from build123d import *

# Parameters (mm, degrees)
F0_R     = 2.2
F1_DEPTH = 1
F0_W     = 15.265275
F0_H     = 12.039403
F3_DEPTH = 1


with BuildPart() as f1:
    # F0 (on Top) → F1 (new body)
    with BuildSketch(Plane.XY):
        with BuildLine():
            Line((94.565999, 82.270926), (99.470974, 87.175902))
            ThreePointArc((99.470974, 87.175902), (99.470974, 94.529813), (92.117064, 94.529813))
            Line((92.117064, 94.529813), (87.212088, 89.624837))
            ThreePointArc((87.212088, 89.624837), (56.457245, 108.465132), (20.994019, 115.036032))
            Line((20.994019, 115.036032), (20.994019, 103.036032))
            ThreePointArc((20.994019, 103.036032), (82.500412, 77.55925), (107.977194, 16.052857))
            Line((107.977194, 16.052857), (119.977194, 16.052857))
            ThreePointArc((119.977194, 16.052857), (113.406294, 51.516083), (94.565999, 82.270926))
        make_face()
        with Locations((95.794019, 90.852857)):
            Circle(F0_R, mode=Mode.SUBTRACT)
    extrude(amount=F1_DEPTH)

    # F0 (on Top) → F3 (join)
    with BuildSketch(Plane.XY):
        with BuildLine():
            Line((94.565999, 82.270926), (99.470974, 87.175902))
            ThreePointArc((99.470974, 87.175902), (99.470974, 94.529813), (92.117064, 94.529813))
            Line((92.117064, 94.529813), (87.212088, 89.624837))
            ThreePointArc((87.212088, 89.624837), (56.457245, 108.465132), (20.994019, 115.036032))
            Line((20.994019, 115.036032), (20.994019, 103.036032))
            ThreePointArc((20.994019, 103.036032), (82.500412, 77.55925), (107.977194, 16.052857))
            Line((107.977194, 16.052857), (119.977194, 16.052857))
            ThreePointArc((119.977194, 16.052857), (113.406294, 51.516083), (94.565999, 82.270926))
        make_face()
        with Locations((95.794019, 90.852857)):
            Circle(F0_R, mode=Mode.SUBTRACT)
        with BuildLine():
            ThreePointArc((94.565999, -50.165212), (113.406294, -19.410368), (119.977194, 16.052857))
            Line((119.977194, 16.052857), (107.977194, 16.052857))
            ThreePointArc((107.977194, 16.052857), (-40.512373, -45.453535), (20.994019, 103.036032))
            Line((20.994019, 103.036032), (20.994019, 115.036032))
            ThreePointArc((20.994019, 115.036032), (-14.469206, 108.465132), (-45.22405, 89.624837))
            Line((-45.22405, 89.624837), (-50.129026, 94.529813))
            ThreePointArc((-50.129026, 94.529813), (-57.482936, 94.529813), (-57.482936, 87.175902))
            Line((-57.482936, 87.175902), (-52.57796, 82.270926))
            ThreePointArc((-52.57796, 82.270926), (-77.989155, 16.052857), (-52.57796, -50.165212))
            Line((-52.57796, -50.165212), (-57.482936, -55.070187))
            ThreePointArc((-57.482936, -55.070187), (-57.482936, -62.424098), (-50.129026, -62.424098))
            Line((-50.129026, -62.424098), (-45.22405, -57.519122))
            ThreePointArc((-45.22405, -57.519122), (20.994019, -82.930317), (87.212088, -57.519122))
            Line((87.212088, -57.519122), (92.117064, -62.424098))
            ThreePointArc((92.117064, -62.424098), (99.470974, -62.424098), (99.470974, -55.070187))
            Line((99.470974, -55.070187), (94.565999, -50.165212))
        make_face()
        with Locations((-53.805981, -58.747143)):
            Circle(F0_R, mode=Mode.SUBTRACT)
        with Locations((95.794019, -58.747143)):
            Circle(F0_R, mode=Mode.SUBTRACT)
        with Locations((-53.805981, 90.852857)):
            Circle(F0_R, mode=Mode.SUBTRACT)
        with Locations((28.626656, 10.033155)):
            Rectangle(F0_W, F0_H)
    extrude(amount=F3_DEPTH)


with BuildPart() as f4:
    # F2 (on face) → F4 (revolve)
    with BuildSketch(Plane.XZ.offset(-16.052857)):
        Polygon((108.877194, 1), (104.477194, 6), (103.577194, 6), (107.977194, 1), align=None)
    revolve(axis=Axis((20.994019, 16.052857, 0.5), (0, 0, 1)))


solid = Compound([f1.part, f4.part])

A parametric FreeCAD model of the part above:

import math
import FreeCAD as App
import Part
import Sketcher
from FreeCAD import Vector


def add_polygon(sketch, points):
    """Adds a closed chain of lines whose ends are joined by coincident constraints."""
    first, n = sketch.GeometryCount, len(points)
    for a, b in zip(points, points[1:] + points[:1]):
        sketch.addGeometry(Part.LineSegment(App.Vector(*a, 0), App.Vector(*b, 0)), False)
    for i in range(n):
        sketch.addConstraint(Sketcher.Constraint("Coincident", first + i, 2, first + (i + 1) % n, 1))

doc = App.newDocument("Part")
body = doc.addObject("PartDesign::Body", "Body")
body.AllowCompound = True

# Sketch on XY plane
sketch1 = body.newObject("Sketcher::SketchObject", "Sketch")
sketch1.AttachmentSupport = (doc.getObject("XY_Plane"), [""])
sketch1.MapMode = "FlatFace"
sketch1.addGeometry(Part.LineSegment(Vector(94.565999, 82.270926, 0), Vector(99.470974, 87.175902, 0)), False)
sketch1.addGeometry(Part.ArcOfCircle(Part.Circle(Vector(95.794019, 90.852857, 0), Vector(0, 0, 1), 5.2), math.radians(-45.000004), math.radians(134.999996)), False)
sketch1.addGeometry(Part.LineSegment(Vector(92.117064, 94.529813, 0), Vector(87.212088, 89.624837, 0)), False)
sketch1.addGeometry(Part.ArcOfCircle(Part.Circle(Vector(20.99402, 16.052861, 0), Vector(0, 0, 1), 98.983171), math.radians(48.011372), math.radians(90.000001)), False)
sketch1.addGeometry(Part.LineSegment(Vector(20.994019, 115.036032, 0), Vector(20.994019, 103.036032, 0)), False)
sketch1.addGeometry(Part.ArcOfCircle(Part.Circle(Vector(20.994019, 16.052857, 0), Vector(0, 0, 1), 86.983175), math.radians(0), math.radians(90)), False)
sketch1.addGeometry(Part.LineSegment(Vector(107.977194, 16.052857, 0), Vector(119.977194, 16.052857, 0)), False)
sketch1.addGeometry(Part.ArcOfCircle(Part.Circle(Vector(20.994023, 16.052858, 0), Vector(0, 0, 1), 98.983171), math.radians(-0.000001), math.radians(41.988628)), False)
sketch1.addGeometry(Part.Circle(Vector(95.794019, 90.852857, 0), Vector(0, 0, 1), 2.2), False)
sketch1.addConstraint(Sketcher.Constraint("Coincident", 0, 2, 1, 1))
sketch1.addConstraint(Sketcher.Constraint("Coincident", 1, 2, 2, 1))
sketch1.addConstraint(Sketcher.Constraint("Coincident", 2, 2, 3, 1))
sketch1.addConstraint(Sketcher.Constraint("Coincident", 3, 2, 4, 1))
sketch1.addConstraint(Sketcher.Constraint("Coincident", 4, 2, 5, 2))
sketch1.addConstraint(Sketcher.Constraint("Coincident", 5, 1, 6, 1))
sketch1.addConstraint(Sketcher.Constraint("Coincident", 6, 2, 7, 1))
sketch1.addConstraint(Sketcher.Constraint("Coincident", 7, 2, 0, 1))
sketch1.addConstraint(Sketcher.Constraint("Vertical", 4))
sketch1.addConstraint(Sketcher.Constraint("Horizontal", 6))
sketch1.addConstraint(Sketcher.Constraint("Coincident", 5, 3, 3, 3))
sketch1.addConstraint(Sketcher.Constraint("Coincident", 7, 3, 3, 3))
sketch1.addConstraint(Sketcher.Constraint("Coincident", 8, 3, 1, 3))
sketch1.addConstraint(Sketcher.Constraint("Diameter", 8, 4.4))
sketch1.addConstraint(Sketcher.Constraint("Radius", 1, 5.2))
sketch1.addConstraint(Sketcher.Constraint("DistanceX", 6, 1, 6, 2, 12.0))
sketch1.addConstraint(Sketcher.Constraint("DistanceY", 4, 2, 4, 1, 12.0))
sketch1.addConstraint(Sketcher.Constraint("DistanceX", 3, 3, 1, 3, 74.799999))
sketch1.addConstraint(Sketcher.Constraint("DistanceY", 5, 3, 1, 3, 74.8))
sketch1.addConstraint(Sketcher.Constraint("DistanceX", 3, 2, 1, 3, 74.8))
sketch1.addConstraint(Sketcher.Constraint("DistanceY", 5, 1, 8, 3, 74.8))
sketch1.addConstraint(Sketcher.Constraint("Radius", 3, 98.983171))
sketch1.addConstraint(Sketcher.Constraint("DistanceX", -1, 1, 7, 2, 94.565999))
sketch1.addConstraint(Sketcher.Constraint("DistanceY", -1, 1, 0, 2, 87.175902))
sketch1.addConstraint(Sketcher.Constraint("DistanceX", -1, 1, 1, 3, 95.794019))
sketch1.addConstraint(Sketcher.Constraint("DistanceY", -1, 1, 3, 3, 16.052861))
sketch1.addConstraint(Sketcher.Constraint("DistanceX", 1, 2, 0, 2, 7.35391))
sketch1.addConstraint(Sketcher.Constraint("DistanceX", 2, 2, 8, 3, 8.581931))
pad1 = body.newObject("PartDesign::Pad", "Pad")
pad1.Profile = sketch1
pad1.Length = 1

# Sketch on XY plane
sketch2 = body.newObject("Sketcher::SketchObject", "Sketch001")
sketch2.AttachmentSupport = (doc.getObject("XY_Plane"), [""])
sketch2.MapMode = "FlatFace"
sketch2.addGeometry(Part.LineSegment(Vector(94.6, 82.3, 0), Vector(99.5, 87.2, 0)), False)  # 0
sketch2.addGeometry(Part.ArcOfCircle(Part.Circle(Vector(95.8, 90.9, 0), Vector(0, 0, 1), 5.2), math.radians(-45), math.radians(135)), False)  # 1
sketch2.addGeometry(Part.LineSegment(Vector(92.1, 94.5, 0), Vector(87.2, 89.6, 0)), False)  # 2
sketch2.addGeometry(Part.ArcOfCircle(Part.Circle(Vector(21, 16.1, 0), Vector(0, 0, 1), 99), math.radians(48), math.radians(90)), False)  # 3
sketch2.addGeometry(Part.ArcOfCircle(Part.Circle(Vector(21, 16.1, 0), Vector(0, 0, 1), 99), math.radians(90), math.radians(132)), False)  # 4
sketch2.addGeometry(Part.LineSegment(Vector(-45.2, 89.6, 0), Vector(-50.1, 94.5, 0)), False)  # 5
sketch2.addGeometry(Part.ArcOfCircle(Part.Circle(Vector(-53.8, 90.9, 0), Vector(0, 0, 1), 5.2), math.radians(45), math.radians(225)), False)  # 6
sketch2.addGeometry(Part.LineSegment(Vector(-57.5, 87.2, 0), Vector(-52.6, 82.3, 0)), False)  # 7
sketch2.addGeometry(Part.ArcOfCircle(Part.Circle(Vector(21, 16.1, 0), Vector(0, 0, 1), 99), math.radians(138), math.radians(222)), False)  # 8
sketch2.addGeometry(Part.LineSegment(Vector(-52.6, -50.2, 0), Vector(-57.5, -55.1, 0)), False)  # 9
sketch2.addGeometry(Part.ArcOfCircle(Part.Circle(Vector(-53.8, -58.7, 0), Vector(0, 0, 1), 5.2), math.radians(135), math.radians(315)), False)  # 10
sketch2.addGeometry(Part.LineSegment(Vector(-50.1, -62.4, 0), Vector(-45.2, -57.5, 0)), False)  # 11
sketch2.addGeometry(Part.ArcOfCircle(Part.Circle(Vector(21, 16.1, 0), Vector(0, 0, 1), 99), math.radians(-132), math.radians(-48)), False)  # 12
sketch2.addGeometry(Part.LineSegment(Vector(87.2, -57.5, 0), Vector(92.1, -62.4, 0)), False)  # 13
sketch2.addGeometry(Part.ArcOfCircle(Part.Circle(Vector(95.8, -58.7, 0), Vector(0, 0, 1), 5.2), math.radians(-135), math.radians(45)), False)  # 14
sketch2.addGeometry(Part.LineSegment(Vector(99.5, -55.1, 0), Vector(94.6, -50.2, 0)), False)  # 15
sketch2.addGeometry(Part.ArcOfCircle(Part.Circle(Vector(21, 16.1, 0), Vector(0, 0, 1), 99), math.radians(-42), math.radians(0)), False)  # 16
sketch2.addGeometry(Part.ArcOfCircle(Part.Circle(Vector(21, 16.1, 0), Vector(0, 0, 1), 99), math.radians(0), math.radians(42)), False)  # 17
sketch2.addGeometry(Part.Circle(Vector(-53.8, -58.7, 0), Vector(0, 0, 1), 2.2), False)  # 18
sketch2.addGeometry(Part.ArcOfCircle(Part.Circle(Vector(21, 16.1, 0), Vector(0, 0, 1), 87), math.radians(0), math.radians(90)), False)  # 19
sketch2.addGeometry(Part.ArcOfCircle(Part.Circle(Vector(21, 16.1, 0), Vector(0, 0, 1), 87), math.radians(90), math.radians(360)), False)  # 20
sketch2.addGeometry(Part.Circle(Vector(95.8, -58.7, 0), Vector(0, 0, 1), 2.2), False)  # 21
sketch2.addGeometry(Part.Circle(Vector(-53.8, 90.9, 0), Vector(0, 0, 1), 2.2), False)  # 22
sketch2.addGeometry(Part.Circle(Vector(95.8, 90.9, 0), Vector(0, 0, 1), 2.2), False)  # 23
add_polygon(sketch2, [(21, 16.1), (21, 4), (36.3, 4), (36.3, 16.1)])  # lines 24-27
sketch2.addConstraint(Sketcher.Constraint("Tangent", 0, 2, 1, 1))
sketch2.addConstraint(Sketcher.Constraint("Tangent", 1, 2, 2, 1))
sketch2.addConstraint(Sketcher.Constraint("Coincident", 2, 2, 3, 1))
sketch2.addConstraint(Sketcher.Constraint("Tangent", 3, 2, 4, 1))
sketch2.addConstraint(Sketcher.Constraint("Coincident", 4, 2, 5, 1))
sketch2.addConstraint(Sketcher.Constraint("Tangent", 5, 2, 6, 1))
sketch2.addConstraint(Sketcher.Constraint("Tangent", 6, 2, 7, 1))
sketch2.addConstraint(Sketcher.Constraint("Coincident", 7, 2, 8, 1))
sketch2.addConstraint(Sketcher.Constraint("Coincident", 8, 2, 9, 1))
sketch2.addConstraint(Sketcher.Constraint("Tangent", 9, 2, 10, 1))
sketch2.addConstraint(Sketcher.Constraint("Tangent", 10, 2, 11, 1))
sketch2.addConstraint(Sketcher.Constraint("Coincident", 11, 2, 12, 1))
sketch2.addConstraint(Sketcher.Constraint("Coincident", 12, 2, 13, 1))
sketch2.addConstraint(Sketcher.Constraint("Tangent", 13, 2, 14, 1))
sketch2.addConstraint(Sketcher.Constraint("Tangent", 14, 2, 15, 1))
sketch2.addConstraint(Sketcher.Constraint("Coincident", 15, 2, 16, 1))
sketch2.addConstraint(Sketcher.Constraint("Tangent", 16, 2, 17, 1))
sketch2.addConstraint(Sketcher.Constraint("Coincident", 17, 2, 0, 1))
sketch2.addConstraint(Sketcher.Constraint("Tangent", 19, 1, 20, 2))
sketch2.addConstraint(Sketcher.Constraint("Coincident", 20, 1, 19, 2))
sketch2.addConstraint(Sketcher.Constraint("Vertical", 24))
sketch2.addConstraint(Sketcher.Constraint("Horizontal", 25))
sketch2.addConstraint(Sketcher.Constraint("Vertical", 26))
sketch2.addConstraint(Sketcher.Constraint("Horizontal", 27))
sketch2.addConstraint(Sketcher.Constraint("Coincident", 8, 3, 3, 3))
sketch2.addConstraint(Sketcher.Constraint("Coincident", 12, 3, 3, 3))
sketch2.addConstraint(Sketcher.Constraint("Coincident", 16, 3, 3, 3))
sketch2.addConstraint(Sketcher.Constraint("Coincident", 18, 3, 10, 3))
sketch2.addConstraint(Sketcher.Constraint("Coincident", 19, 3, 3, 3))
sketch2.addConstraint(Sketcher.Constraint("Coincident", 21, 3, 14, 3))
sketch2.addConstraint(Sketcher.Constraint("Coincident", 22, 3, 6, 3))
sketch2.addConstraint(Sketcher.Constraint("Coincident", 23, 3, 1, 3))
sketch2.addConstraint(Sketcher.Constraint("Coincident", 27, 2, 3, 3))
sketch2.addConstraint(Sketcher.Constraint("Equal", 1, 6))
sketch2.addConstraint(Sketcher.Constraint("Equal", 4, 8))
sketch2.addConstraint(Sketcher.Constraint("Equal", 6, 10))
sketch2.addConstraint(Sketcher.Constraint("Equal", 8, 12))
sketch2.addConstraint(Sketcher.Constraint("Equal", 10, 14))
sketch2.addConstraint(Sketcher.Constraint("Equal", 12, 16))
sketch2.addConstraint(Sketcher.Constraint("Equal", 3, 17))
sketch2.addConstraint(Sketcher.Constraint("Equal", 18, 21))
sketch2.addConstraint(Sketcher.Constraint("Equal", 21, 22))
sketch2.addConstraint(Sketcher.Constraint("Equal", 22, 23))
sketch2.addConstraint(Sketcher.Constraint("Parallel", 0, 2))
sketch2.addConstraint(Sketcher.Constraint("Perpendicular", 2, 5))
sketch2.addConstraint(Sketcher.Constraint("Parallel", 5, 7))
sketch2.addConstraint(Sketcher.Constraint("Perpendicular", 7, 9))
sketch2.addConstraint(Sketcher.Constraint("Parallel", 9, 11))
sketch2.addConstraint(Sketcher.Constraint("Perpendicular", 11, 13))
sketch2.addConstraint(Sketcher.Constraint("Parallel", 13, 15))
sketch2.addConstraint(Sketcher.Constraint("Horizontal", 1, 3, 6, 3))
sketch2.addConstraint(Sketcher.Constraint("Horizontal", 10, 3, 14, 3))
sketch2.addConstraint(Sketcher.Constraint("Horizontal", 2, 2, 4, 2))
sketch2.addConstraint(Sketcher.Constraint("Horizontal", 1, 2, 5, 2))
sketch2.addConstraint(Sketcher.Constraint("Horizontal", 11, 2, 12, 2))
sketch2.addConstraint(Sketcher.Constraint("Horizontal", 20, 3, 16, 2))
sketch2.addConstraint(Sketcher.Constraint("Horizontal", 16, 2, 19, 1))
sketch2.addConstraint(Sketcher.Constraint("Vertical", 6, 3, 10, 3))
sketch2.addConstraint(Sketcher.Constraint("Vertical", 1, 3, 14, 3))
sketch2.addConstraint(Sketcher.Constraint("Vertical", 20, 3, 3, 2))
sketch2.addConstraint(Sketcher.Constraint("Vertical", 7, 2, 8, 2))
sketch2.addConstraint(Sketcher.Constraint("Vertical", 3, 2, 20, 1))
sketch2.addConstraint(Sketcher.Constraint("Equal", 0, 2))
sketch2.addConstraint(Sketcher.Constraint("Diameter", 18, 4.4))
sketch2.addConstraint(Sketcher.Constraint("Radius", 1, 5.2))
sketch2.addConstraint(Sketcher.Constraint("DistanceX", 19, 1, 16, 2, 12.0))
sketch2.addConstraint(Sketcher.Constraint("DistanceX", 3, 3, 1, 3, 74.799999))
sketch2.addConstraint(Sketcher.Constraint("Radius", 3, 98.983171))
sketch2.addConstraint(Sketcher.Constraint("DistanceX", -1, 1, 15, 2, 94.565999))
sketch2.addConstraint(Sketcher.Constraint("DistanceY", -1, 1, 0, 2, 87.175902))
sketch2.addConstraint(Sketcher.Constraint("DistanceX", 25, 1, 25, 2, 15.265275))
sketch2.addConstraint(Sketcher.Constraint("DistanceY", 24, 2, 24, 1, 12.039403))
pad2 = body.newObject("PartDesign::Pad", "Pad001")
pad2.Profile = sketch2
pad2.Length = 1
body2 = doc.addObject("PartDesign::Body", "Body001")

# Sketch on XZ plane
sketch3 = body2.newObject("Sketcher::SketchObject", "Sketch002")
sketch3.AttachmentSupport = (doc.getObject("XZ_Plane001"), [""])
sketch3.MapMode = "FlatFace"
sketch3.AttachmentOffset = App.Placement(Vector(0, 0, -16.052857), App.Rotation())
add_polygon(sketch3, [(108.9, 1), (104.5, 6), (103.6, 6), (108, 1)])  # lines 0-3
sketch3.addGeometry(Part.LineSegment(Vector(21, 1, 0), Vector(21, 6, 0)), True)  # axis
sketch3.addConstraint(Sketcher.Constraint("Horizontal", 1))
sketch3.addConstraint(Sketcher.Constraint("Horizontal", 3))
sketch3.addConstraint(Sketcher.Constraint("Vertical", 4))
sketch3.addConstraint(Sketcher.Constraint("Parallel", 0, 2))
sketch3.addConstraint(Sketcher.Constraint("Horizontal", 3, 2, 4, 1))
sketch3.addConstraint(Sketcher.Constraint("Horizontal", 1, 2, 4, 2))
sketch3.addConstraint(Sketcher.Constraint("DistanceY", 4, 1, 4, 2, 5.0))
sketch3.addConstraint(Sketcher.Constraint("DistanceX", 1, 2, 1, 1, 0.9))
sketch3.addConstraint(Sketcher.Constraint("DistanceY", -1, 1, 0, 2, 6.0))
sketch3.addConstraint(Sketcher.Constraint("DistanceX", 0, 2, 2, 2, 3.5))
sketch3.addConstraint(Sketcher.Constraint("DistanceX", -1, 1, 4, 1, 20.994019))
sketch3.addConstraint(Sketcher.Constraint("DistanceX", -1, 1, 0, 2, 104.477194))
revolution = body2.newObject("PartDesign::Revolution", "Revolution")
revolution.Profile = sketch3
revolution.ReferenceAxis = (sketch3, ["Axis0"])
revolution.Angle = 360

doc.recompute()
